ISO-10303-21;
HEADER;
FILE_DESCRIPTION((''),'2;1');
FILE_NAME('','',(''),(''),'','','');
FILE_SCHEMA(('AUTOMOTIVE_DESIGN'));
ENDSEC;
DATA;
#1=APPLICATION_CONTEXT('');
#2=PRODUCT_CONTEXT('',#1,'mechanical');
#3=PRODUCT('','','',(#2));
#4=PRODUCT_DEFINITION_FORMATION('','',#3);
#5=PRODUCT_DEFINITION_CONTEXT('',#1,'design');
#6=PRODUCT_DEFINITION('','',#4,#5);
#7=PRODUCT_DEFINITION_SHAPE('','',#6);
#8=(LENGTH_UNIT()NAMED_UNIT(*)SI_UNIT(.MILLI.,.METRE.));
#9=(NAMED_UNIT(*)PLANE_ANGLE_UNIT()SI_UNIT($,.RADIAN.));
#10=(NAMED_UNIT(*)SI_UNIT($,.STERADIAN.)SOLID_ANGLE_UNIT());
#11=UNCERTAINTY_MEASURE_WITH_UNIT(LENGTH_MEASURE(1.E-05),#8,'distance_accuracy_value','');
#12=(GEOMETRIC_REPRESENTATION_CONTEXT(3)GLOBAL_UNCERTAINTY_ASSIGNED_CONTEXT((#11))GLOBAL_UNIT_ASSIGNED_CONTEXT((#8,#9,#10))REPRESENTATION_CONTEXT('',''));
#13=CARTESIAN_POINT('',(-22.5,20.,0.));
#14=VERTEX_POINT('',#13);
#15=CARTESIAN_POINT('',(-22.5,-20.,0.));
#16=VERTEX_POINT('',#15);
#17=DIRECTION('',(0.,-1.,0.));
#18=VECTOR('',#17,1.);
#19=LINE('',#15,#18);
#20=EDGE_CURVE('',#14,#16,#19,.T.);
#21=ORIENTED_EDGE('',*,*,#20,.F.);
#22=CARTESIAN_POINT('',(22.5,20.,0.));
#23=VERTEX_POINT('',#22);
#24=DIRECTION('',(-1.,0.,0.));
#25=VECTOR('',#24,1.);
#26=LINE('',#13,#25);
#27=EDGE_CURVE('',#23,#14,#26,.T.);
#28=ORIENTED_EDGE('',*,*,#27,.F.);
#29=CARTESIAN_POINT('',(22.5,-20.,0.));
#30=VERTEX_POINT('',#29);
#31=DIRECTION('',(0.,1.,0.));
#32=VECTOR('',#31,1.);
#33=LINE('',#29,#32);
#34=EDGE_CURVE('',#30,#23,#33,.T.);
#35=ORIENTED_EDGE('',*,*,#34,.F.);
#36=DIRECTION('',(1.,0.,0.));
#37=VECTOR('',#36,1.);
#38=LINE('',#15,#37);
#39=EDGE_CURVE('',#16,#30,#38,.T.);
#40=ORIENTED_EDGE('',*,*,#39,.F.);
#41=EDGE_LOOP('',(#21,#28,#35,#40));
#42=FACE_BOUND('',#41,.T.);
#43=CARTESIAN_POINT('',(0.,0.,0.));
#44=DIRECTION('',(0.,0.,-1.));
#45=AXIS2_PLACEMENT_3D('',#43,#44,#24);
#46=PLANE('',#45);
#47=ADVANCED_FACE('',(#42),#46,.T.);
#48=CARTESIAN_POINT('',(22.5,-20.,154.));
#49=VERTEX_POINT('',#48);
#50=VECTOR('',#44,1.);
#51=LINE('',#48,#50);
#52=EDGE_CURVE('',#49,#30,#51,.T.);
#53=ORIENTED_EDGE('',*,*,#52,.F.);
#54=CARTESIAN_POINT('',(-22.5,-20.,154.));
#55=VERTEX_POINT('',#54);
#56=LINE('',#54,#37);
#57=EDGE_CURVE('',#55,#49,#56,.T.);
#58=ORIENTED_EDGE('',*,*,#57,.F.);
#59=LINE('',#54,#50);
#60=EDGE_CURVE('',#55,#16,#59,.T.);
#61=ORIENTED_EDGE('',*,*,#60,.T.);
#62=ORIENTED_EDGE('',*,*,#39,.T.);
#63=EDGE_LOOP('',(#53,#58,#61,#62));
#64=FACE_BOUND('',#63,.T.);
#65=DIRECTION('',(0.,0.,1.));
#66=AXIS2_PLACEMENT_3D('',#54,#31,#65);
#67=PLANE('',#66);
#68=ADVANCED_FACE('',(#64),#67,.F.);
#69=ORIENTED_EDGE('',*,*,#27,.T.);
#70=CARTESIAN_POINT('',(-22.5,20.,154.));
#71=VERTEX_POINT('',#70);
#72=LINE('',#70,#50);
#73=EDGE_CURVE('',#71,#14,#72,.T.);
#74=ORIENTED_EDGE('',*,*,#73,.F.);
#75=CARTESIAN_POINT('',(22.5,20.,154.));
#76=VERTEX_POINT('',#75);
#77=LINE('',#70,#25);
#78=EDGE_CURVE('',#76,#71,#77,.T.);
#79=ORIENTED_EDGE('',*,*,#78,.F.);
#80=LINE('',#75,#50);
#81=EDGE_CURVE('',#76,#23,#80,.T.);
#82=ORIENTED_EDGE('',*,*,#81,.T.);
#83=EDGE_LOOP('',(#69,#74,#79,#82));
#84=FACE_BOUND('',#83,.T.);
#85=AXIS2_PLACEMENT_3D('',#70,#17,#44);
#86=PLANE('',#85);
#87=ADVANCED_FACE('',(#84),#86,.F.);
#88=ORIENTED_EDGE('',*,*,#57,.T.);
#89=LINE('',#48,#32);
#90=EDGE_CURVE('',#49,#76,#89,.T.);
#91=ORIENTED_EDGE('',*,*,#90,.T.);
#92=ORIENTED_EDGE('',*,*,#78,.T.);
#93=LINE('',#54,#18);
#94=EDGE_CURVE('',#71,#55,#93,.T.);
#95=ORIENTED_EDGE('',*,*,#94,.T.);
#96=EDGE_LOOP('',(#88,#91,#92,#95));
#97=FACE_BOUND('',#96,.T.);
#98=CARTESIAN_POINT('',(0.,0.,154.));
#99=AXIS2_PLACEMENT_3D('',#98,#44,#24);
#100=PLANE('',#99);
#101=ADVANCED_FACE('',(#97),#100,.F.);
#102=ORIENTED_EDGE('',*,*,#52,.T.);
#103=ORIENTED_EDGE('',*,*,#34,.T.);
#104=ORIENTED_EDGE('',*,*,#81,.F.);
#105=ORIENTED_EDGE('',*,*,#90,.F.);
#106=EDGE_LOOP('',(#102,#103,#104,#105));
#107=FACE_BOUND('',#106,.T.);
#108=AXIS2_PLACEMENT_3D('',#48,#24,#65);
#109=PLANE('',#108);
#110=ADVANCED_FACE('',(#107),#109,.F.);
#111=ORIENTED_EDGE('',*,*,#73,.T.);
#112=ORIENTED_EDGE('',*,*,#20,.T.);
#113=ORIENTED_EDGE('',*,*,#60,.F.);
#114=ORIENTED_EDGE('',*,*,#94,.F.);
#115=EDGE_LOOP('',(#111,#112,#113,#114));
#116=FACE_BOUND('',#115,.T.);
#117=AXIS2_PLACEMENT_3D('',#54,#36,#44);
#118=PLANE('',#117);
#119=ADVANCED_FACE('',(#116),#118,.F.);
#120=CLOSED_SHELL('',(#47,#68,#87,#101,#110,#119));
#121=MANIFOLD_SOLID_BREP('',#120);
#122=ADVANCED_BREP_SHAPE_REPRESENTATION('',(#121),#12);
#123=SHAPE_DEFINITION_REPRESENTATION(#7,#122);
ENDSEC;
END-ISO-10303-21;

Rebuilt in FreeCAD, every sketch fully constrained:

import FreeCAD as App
import Part
import Sketcher

V = App.Vector
Q = App.Units.Quantity

doc = App.newDocument("Part")
body = doc.addObject("PartDesign::Body", "Body")

# Sketch on XY plane
sketch1 = body.newObject("Sketcher::SketchObject", "Sketch")
sketch1.AttachmentSupport = (doc.getObject("XY_Plane"), [""])
sketch1.MapMode = "FlatFace"
sketch1.addGeometry([
    Part.LineSegment(V(-22, 20, 0), V(-22, -20, 0)),
    Part.LineSegment(V(-22, -20, 0), V(22, -20, 0)),
    Part.LineSegment(V(22, -20, 0), V(22, 20, 0)),
    Part.LineSegment(V(22, 20, 0), V(-22, 20, 0)),
], False)
sketch1.addConstraint([
    Sketcher.Constraint("Coincident", 0, 2, 1, 1),
    Sketcher.Constraint("Coincident", 1, 2, 2, 1),
    Sketcher.Constraint("Coincident", 2, 2, 3, 1),
    Sketcher.Constraint("Coincident", 3, 2, 0, 1),
    Sketcher.Constraint("Vertical", 0),
    Sketcher.Constraint("Horizontal", 1),
    Sketcher.Constraint("Vertical", 2),
    Sketcher.Constraint("Horizontal", 3),
    Sketcher.Constraint("Symmetric", 0, 2, 2, 2, -1, 1),
    Sketcher.Constraint("DistanceX", 1, 1, 1, 2, Q("45 mm")),
    Sketcher.Constraint("DistanceY", 0, 2, 0, 1, Q("40 mm")),
])
pad1 = body.newObject("PartDesign::Pad", "Pad")
pad1.Profile = sketch1
pad1.Length = 154

doc.recompute()
